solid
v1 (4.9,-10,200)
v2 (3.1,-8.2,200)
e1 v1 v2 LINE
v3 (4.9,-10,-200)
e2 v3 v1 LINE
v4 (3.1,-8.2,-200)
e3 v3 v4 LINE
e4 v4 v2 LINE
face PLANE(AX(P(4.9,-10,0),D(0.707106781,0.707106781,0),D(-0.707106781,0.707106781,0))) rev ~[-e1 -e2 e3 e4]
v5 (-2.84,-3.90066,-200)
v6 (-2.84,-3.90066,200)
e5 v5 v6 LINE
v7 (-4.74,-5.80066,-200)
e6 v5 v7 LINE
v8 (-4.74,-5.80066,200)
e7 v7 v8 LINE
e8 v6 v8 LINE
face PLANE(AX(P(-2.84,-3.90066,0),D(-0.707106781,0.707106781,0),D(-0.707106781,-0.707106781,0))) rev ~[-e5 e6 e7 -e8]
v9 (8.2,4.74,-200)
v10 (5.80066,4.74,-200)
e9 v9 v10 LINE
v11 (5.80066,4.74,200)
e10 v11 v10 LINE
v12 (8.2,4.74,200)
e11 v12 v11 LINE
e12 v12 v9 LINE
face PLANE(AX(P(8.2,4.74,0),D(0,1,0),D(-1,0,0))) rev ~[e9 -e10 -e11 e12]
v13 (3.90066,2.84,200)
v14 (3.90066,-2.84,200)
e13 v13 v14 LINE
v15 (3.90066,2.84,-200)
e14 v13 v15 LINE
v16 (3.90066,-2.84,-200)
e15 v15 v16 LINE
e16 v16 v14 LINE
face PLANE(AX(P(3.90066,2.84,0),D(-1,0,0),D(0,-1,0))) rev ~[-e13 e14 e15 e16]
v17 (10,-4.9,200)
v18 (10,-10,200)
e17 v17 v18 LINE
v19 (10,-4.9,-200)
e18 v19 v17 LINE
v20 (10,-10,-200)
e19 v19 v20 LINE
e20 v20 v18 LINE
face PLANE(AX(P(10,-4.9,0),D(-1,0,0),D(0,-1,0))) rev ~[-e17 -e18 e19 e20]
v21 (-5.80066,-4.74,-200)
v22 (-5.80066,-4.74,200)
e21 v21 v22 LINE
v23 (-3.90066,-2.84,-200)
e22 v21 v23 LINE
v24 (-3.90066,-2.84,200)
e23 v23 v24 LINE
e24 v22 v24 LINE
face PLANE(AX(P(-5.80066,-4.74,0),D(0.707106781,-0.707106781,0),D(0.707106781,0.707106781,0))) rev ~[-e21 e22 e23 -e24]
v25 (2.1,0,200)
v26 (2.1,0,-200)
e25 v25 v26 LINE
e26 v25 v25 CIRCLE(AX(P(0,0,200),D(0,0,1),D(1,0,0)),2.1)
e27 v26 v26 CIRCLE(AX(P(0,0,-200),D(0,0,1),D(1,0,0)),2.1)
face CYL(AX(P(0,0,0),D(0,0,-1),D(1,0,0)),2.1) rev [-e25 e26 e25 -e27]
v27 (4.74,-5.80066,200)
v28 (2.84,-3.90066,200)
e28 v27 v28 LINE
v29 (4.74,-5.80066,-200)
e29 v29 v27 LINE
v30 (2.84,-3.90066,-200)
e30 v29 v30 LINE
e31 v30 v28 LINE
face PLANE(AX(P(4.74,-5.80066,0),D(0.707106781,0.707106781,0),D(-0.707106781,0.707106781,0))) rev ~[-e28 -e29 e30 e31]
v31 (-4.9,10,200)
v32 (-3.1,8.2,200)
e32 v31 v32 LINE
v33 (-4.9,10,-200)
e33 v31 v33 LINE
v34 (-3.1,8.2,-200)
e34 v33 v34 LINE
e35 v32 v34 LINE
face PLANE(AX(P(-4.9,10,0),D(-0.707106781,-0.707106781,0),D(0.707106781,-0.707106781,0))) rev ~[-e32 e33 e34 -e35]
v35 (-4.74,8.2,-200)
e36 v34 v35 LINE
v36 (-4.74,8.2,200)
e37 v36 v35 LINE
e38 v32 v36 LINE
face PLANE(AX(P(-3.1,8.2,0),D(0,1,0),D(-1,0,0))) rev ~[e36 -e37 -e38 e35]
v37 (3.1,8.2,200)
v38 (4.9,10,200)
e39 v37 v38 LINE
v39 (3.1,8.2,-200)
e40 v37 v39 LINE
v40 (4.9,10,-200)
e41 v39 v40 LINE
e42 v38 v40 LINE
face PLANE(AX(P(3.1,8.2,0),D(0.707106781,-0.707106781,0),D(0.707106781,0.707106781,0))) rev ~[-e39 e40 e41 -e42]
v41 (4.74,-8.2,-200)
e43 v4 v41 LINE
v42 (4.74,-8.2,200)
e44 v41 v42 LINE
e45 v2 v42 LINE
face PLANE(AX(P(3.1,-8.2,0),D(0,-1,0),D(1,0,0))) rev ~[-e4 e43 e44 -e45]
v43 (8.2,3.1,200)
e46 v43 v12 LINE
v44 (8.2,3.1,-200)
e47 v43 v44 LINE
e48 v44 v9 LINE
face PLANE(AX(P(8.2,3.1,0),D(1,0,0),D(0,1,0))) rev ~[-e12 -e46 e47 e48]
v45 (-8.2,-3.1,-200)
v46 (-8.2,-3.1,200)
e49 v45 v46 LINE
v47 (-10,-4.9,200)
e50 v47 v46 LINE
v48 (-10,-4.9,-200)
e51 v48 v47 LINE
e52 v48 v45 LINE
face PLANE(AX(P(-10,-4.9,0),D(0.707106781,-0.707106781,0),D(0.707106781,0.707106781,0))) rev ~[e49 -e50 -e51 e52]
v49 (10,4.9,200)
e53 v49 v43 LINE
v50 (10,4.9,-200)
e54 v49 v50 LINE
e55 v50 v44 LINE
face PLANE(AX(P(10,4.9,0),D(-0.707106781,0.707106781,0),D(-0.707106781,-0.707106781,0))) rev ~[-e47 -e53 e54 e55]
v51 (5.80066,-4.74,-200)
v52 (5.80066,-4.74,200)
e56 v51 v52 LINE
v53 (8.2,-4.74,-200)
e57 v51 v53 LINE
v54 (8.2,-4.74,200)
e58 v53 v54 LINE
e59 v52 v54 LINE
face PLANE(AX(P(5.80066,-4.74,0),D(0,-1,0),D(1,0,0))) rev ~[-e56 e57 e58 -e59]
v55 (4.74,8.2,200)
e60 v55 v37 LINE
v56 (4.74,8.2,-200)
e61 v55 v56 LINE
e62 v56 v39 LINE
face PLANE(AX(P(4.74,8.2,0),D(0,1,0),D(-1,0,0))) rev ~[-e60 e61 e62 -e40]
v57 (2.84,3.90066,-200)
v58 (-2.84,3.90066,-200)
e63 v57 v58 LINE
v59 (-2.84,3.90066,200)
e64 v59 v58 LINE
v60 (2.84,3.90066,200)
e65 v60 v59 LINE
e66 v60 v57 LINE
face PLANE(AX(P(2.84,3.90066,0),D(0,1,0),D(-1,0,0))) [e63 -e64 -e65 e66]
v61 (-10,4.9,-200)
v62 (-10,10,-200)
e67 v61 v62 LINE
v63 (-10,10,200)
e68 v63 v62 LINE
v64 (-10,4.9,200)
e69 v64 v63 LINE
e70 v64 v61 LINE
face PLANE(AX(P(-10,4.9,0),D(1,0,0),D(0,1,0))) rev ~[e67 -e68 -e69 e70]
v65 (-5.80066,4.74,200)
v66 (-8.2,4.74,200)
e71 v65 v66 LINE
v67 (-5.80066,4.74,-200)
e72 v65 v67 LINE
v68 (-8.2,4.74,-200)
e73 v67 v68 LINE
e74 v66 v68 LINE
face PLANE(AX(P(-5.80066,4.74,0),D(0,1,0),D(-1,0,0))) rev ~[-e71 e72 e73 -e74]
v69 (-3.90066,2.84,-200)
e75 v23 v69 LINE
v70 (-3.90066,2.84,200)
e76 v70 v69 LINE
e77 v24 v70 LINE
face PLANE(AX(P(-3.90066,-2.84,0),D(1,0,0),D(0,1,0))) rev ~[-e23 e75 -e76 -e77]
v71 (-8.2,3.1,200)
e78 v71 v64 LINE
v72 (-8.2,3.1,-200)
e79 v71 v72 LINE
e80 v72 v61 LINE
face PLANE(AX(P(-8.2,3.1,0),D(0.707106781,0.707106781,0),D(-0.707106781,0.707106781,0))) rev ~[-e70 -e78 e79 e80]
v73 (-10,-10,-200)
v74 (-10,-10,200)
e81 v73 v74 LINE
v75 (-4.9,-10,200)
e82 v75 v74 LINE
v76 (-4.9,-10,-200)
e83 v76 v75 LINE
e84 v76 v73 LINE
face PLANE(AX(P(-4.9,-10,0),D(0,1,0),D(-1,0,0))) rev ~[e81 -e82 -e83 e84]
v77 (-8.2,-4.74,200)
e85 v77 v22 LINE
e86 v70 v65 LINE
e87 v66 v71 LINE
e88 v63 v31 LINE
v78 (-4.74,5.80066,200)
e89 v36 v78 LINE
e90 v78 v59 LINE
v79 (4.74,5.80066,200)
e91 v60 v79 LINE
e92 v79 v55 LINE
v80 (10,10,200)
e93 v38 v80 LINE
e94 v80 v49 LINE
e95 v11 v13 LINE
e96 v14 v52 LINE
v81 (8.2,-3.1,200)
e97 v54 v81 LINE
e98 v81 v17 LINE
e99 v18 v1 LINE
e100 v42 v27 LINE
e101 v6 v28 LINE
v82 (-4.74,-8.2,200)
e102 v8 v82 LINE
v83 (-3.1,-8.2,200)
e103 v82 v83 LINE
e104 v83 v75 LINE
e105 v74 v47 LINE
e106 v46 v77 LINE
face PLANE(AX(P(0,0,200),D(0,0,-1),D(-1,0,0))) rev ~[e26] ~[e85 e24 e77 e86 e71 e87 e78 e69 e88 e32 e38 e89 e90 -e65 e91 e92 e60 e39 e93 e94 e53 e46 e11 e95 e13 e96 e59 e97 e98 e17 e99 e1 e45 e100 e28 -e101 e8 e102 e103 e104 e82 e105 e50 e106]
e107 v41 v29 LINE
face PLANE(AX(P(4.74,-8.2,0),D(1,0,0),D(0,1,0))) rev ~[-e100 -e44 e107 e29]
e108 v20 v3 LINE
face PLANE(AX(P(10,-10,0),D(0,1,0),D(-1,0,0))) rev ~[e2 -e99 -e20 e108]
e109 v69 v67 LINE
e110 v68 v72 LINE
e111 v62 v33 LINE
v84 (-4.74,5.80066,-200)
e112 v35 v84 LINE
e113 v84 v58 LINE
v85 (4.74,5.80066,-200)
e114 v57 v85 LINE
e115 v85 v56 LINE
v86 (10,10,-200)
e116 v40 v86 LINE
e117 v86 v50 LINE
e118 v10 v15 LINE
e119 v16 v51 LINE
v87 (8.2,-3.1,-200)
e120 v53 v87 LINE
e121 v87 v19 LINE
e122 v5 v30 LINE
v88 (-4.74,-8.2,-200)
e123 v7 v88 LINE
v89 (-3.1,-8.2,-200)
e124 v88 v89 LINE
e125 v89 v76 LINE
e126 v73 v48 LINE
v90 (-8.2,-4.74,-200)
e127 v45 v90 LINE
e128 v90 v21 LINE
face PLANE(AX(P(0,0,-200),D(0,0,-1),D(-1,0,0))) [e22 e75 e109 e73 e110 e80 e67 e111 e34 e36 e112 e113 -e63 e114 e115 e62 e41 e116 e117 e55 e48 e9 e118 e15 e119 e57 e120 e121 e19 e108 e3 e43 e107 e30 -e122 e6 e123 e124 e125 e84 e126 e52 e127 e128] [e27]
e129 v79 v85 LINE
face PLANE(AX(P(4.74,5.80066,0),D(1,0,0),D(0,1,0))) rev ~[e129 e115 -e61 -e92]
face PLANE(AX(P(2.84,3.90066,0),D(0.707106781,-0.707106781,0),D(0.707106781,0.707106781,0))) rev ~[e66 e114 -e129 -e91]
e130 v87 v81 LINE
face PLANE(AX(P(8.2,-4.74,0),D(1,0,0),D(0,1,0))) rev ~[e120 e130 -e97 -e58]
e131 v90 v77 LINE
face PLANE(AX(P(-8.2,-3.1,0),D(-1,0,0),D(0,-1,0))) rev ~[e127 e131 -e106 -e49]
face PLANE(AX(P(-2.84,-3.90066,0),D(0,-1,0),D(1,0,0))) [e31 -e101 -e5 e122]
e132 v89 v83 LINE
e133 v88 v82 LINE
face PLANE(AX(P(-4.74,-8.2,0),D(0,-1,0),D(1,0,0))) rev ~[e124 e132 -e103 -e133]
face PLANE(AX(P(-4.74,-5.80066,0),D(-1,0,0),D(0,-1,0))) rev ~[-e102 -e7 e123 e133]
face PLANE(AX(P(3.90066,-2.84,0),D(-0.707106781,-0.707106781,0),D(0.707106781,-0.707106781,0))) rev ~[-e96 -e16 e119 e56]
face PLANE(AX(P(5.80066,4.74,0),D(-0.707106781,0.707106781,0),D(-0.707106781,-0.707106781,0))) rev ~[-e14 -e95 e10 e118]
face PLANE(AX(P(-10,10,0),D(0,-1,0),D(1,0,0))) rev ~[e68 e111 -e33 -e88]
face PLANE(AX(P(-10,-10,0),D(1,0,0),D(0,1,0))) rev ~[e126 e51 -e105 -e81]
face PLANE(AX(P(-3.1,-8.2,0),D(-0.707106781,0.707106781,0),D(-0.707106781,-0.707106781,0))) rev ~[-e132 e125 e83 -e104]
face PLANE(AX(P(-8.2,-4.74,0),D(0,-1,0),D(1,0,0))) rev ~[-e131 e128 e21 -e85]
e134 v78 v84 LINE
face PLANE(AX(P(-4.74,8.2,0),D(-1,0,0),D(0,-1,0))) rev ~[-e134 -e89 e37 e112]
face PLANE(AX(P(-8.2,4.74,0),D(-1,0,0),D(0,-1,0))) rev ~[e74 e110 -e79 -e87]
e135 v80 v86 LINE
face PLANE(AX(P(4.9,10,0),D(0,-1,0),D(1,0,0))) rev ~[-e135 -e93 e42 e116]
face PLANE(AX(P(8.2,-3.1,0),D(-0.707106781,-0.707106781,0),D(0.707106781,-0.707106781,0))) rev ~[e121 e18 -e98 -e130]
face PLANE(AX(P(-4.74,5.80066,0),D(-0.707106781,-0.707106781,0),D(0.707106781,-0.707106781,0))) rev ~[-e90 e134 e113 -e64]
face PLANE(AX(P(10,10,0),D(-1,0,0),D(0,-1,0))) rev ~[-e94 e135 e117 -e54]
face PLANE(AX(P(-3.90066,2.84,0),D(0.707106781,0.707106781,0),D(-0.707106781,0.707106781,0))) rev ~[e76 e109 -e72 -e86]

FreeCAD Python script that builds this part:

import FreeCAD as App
import Part
import Sketcher
from FreeCAD import Vector


def add_polygon(sketch, points):
    """Adds a closed chain of lines whose ends are joined by coincident constraints."""
    first, n = sketch.GeometryCount, len(points)
    for a, b in zip(points, points[1:] + points[:1]):
        sketch.addGeometry(Part.LineSegment(App.Vector(*a, 0), App.Vector(*b, 0)), False)
    for i in range(n):
        sketch.addConstraint(Sketcher.Constraint("Coincident", first + i, 2, first + (i + 1) % n, 1))

doc = App.newDocument("Part")
body = doc.addObject("PartDesign::Body", "Body")

# Sketch on XY plane
sketch1 = body.newObject("Sketcher::SketchObject", "Sketch")
sketch1.AttachmentSupport = (doc.getObject("XY_Plane"), [""])
sketch1.MapMode = "FlatFace"
add_polygon(sketch1, [(-3.9, 2.8), (-3.9, -2.8), (-5.8, -4.7), (-8.2, -4.7), (-8.2, -3.1), (-10, -4.9), (-10, -10), (-4.9, -10), (-3.1, -8.2), (-4.7, -8.2), (-4.7, -5.8), (-2.8, -3.9), (2.8, -3.9), (4.7, -5.8), (4.7, -8.2), (3.1, -8.2), (4.9, -10), (10, -10), (10, -4.9), (8.2, -3.1), (8.2, -4.7), (5.8, -4.7), (3.9, -2.8), (3.9, 2.8), (5.8, 4.7), (8.2, 4.7), (8.2, 3.1), (10, 4.9), (10, 10), (4.9, 10), (3.1, 8.2), (4.7, 8.2), (4.7, 5.8), (2.8, 3.9), (-2.8, 3.9), (-4.7, 5.8), (-4.7, 8.2), (-3.1, 8.2), (-4.9, 10), (-10, 10), (-10, 4.9), (-8.2, 3.1), (-8.2, 4.7), (-5.8, 4.7)])  # lines 0-43
sketch1.addGeometry(Part.Circle(Vector(0, 0, 0), Vector(0, 0, 1), 2.1), False)  # 44
sketch1.addConstraint([
    Sketcher.Constraint("Vertical", 0),
    Sketcher.Constraint("Horizontal", 2),
    Sketcher.Constraint("Vertical", 3),
    Sketcher.Constraint("Vertical", 5),
    Sketcher.Constraint("Horizontal", 6),
    Sketcher.Constraint("Horizontal", 8),
    Sketcher.Constraint("Vertical", 9),
    Sketcher.Constraint("Horizontal", 11),
    Sketcher.Constraint("Vertical", 13),
    Sketcher.Constraint("Horizontal", 14),
    Sketcher.Constraint("Horizontal", 16),
    Sketcher.Constraint("Vertical", 17),
    Sketcher.Constraint("Vertical", 19),
    Sketcher.Constraint("Horizontal", 20),
    Sketcher.Constraint("Vertical", 22),
    Sketcher.Constraint("Horizontal", 24),
    Sketcher.Constraint("Vertical", 25),
    Sketcher.Constraint("Vertical", 27),
    Sketcher.Constraint("Horizontal", 28),
    Sketcher.Constraint("Horizontal", 30),
    Sketcher.Constraint("Vertical", 31),
    Sketcher.Constraint("Horizontal", 33),
    Sketcher.Constraint("Vertical", 35),
    Sketcher.Constraint("Horizontal", 36),
    Sketcher.Constraint("Horizontal", 38),
    Sketcher.Constraint("Vertical", 39),
    Sketcher.Constraint("Vertical", 41),
    Sketcher.Constraint("Horizontal", 42),
    Sketcher.Constraint("Coincident", 44, 3, -1, 1),
    Sketcher.Constraint("Symmetric", 0, 2, 22, 2, -1, 1),
    Sketcher.Constraint("Symmetric", 1, 2, 23, 2, -1, 1),
    Sketcher.Constraint("Symmetric", 3, 2, 25, 2, -1, 1),
    Sketcher.Constraint("Symmetric", 4, 2, 26, 2, -1, 1),
    Sketcher.Constraint("Symmetric", 6, 2, 28, 2, -1, 1),
    Sketcher.Constraint("Symmetric", 7, 2, 29, 2, -1, 1),
    Sketcher.Constraint("Symmetric", 9, 2, 31, 2, -1, 1),
    Sketcher.Constraint("Symmetric", 10, 2, 32, 2, -1, 1),
    Sketcher.Constraint("Symmetric", 12, 2, 34, 2, -1, 1),
    Sketcher.Constraint("Symmetric", 14, 2, 36, 2, -1, 1),
    Sketcher.Constraint("Symmetric", 15, 2, 37, 2, -1, 1),
    Sketcher.Constraint("Symmetric", 17, 2, 39, 2, -1, 1),
    Sketcher.Constraint("Symmetric", 18, 2, 40, 2, -1, 1),
    Sketcher.Constraint("Symmetric", 20, 2, 42, 2, -1, 1),
    Sketcher.Constraint("Symmetric", 9, 2, 12, 2, -2),
    Sketcher.Constraint("Symmetric", 7, 2, 14, 2, -2),
    Sketcher.Constraint("Symmetric", 6, 2, 15, 2, -2),
    Sketcher.Constraint("Symmetric", 4, 2, 17, 2, -2),
    Sketcher.Constraint("Symmetric", 3, 2, 18, 2, -2),
    Sketcher.Constraint("Symmetric", 1, 2, 20, 2, -2),
    Sketcher.Constraint("Parallel", 1, 4),
    Sketcher.Constraint("Parallel", 4, 7),
    Sketcher.Constraint("Parallel", 7, 10),
    Sketcher.Constraint("Perpendicular", 10, 12),
    Sketcher.Constraint("Parallel", 12, 15),
    Sketcher.Constraint("Parallel", 18, 21),
    Sketcher.Constraint("Perpendicular", 32, 34),
    Sketcher.Constraint("Parallel", 40, 43),
    Sketcher.Constraint("Equal", 33, 0),
    Sketcher.Constraint("Equal", 36, 3),
    Sketcher.Constraint("Equal", 38, 5),
    Sketcher.Constraint("Equal", 42, 9),
    Sketcher.Constraint("Equal", 4, 7),
    Sketcher.Constraint("Equal", 1, 10),
    Sketcher.Constraint("Diameter", 44, 4.2),
    Sketcher.Constraint("DistanceX", 6, 1, 6, 2, 5.1),
    Sketcher.Constraint("DistanceX", 4, 2, -1, 1, 10.0),
    Sketcher.Constraint("DistanceX", 7, 2, 15, 2, 8.0),
    Sketcher.Constraint("DistanceX", 8, 2, 8, 1, 1.64),
    Sketcher.Constraint("DistanceX", 11, 1, 11, 2, 5.68),
    Sketcher.Constraint("DistanceX", 2, 2, 2, 1, 2.39934),
])
pad1 = body.newObject("PartDesign::Pad", "Pad")
pad1.Profile = sketch1
pad1.Length = 400
pad1.Midplane = True

doc.recompute()
